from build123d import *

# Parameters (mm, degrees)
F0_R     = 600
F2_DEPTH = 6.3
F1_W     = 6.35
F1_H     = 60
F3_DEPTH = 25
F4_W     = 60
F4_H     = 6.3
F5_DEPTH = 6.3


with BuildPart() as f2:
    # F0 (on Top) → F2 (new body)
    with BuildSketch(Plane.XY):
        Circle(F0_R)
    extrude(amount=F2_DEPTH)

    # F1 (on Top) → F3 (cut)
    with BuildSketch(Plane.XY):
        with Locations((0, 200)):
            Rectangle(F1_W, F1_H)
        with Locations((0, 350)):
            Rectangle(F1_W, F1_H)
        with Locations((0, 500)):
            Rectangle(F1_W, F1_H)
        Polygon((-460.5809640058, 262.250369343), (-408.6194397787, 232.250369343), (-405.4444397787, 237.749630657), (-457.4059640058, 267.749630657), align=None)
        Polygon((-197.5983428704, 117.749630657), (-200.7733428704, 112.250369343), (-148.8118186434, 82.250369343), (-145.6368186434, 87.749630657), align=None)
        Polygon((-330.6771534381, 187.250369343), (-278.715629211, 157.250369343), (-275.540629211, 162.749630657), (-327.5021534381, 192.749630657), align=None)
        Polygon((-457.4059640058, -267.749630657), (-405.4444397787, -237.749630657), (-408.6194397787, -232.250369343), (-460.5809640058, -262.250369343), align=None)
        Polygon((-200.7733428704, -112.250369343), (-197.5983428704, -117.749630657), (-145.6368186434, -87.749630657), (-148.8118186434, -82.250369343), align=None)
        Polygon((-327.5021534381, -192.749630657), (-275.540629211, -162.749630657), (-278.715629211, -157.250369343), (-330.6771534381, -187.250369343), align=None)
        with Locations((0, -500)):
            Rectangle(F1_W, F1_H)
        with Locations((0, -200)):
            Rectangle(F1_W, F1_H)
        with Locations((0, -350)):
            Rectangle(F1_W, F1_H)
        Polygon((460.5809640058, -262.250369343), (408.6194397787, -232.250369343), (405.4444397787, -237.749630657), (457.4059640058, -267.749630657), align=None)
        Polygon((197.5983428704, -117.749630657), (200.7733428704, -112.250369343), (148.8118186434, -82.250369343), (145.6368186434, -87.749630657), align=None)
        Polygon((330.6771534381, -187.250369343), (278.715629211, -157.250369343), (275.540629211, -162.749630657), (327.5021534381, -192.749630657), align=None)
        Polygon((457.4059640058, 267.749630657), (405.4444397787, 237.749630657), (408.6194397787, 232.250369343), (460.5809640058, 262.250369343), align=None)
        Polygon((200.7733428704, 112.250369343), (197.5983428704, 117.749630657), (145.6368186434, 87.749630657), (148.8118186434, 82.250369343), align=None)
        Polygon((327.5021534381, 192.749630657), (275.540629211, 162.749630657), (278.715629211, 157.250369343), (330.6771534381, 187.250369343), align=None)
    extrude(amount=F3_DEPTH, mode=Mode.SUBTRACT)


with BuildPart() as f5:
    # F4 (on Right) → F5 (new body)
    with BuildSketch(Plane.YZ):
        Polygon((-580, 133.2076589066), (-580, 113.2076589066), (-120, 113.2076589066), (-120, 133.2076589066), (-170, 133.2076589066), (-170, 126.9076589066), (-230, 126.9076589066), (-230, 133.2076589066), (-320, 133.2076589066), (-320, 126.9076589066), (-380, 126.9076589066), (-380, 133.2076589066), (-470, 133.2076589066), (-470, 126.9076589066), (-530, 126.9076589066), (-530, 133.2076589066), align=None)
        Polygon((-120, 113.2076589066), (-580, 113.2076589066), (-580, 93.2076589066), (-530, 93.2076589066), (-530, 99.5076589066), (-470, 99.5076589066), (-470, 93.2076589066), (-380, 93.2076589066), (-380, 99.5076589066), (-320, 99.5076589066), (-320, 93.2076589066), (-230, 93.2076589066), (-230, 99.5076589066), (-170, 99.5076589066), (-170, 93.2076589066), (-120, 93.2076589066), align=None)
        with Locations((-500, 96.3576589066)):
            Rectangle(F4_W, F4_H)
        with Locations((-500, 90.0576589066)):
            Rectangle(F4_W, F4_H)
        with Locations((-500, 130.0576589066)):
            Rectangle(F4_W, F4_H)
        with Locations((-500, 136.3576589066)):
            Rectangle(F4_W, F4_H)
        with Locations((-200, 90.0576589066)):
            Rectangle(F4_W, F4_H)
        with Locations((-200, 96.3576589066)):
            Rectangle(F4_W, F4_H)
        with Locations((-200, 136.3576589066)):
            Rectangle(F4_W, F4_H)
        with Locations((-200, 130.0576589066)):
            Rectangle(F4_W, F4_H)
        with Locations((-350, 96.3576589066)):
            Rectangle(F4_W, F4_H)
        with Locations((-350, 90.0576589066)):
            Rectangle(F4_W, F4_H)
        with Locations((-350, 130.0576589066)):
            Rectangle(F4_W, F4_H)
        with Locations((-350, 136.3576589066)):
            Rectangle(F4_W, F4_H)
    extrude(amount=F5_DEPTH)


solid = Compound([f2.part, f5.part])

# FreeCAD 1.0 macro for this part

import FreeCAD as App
import Part
import Sketcher
Q = App.Units.Quantity

doc = App.newDocument("Part")
body = doc.addObject("PartDesign::Body", "Body")

# Sketch on XY plane
sketch1 = doc.addObject("Sketcher::SketchObject", "Sketch")
body.addObject(sketch1)
sketch1.AttachmentSupport = (doc.XY_Plane, [""])
sketch1.MapMode = "FlatFace"
sketch1.addGeometry(Part.Circle(App.Vector(0, 0, 0), App.Vector(0, 0, 1), 600), False)
sketch1.addConstraint([
    Sketcher.Constraint("Coincident", 0, 3, -1, 1),
    Sketcher.Constraint("Diameter", 0, 1200.0),
])
pad1 = doc.addObject("PartDesign::Pad", "Pad")
body.addObject(pad1)
pad1.Profile = sketch1
pad1.Length = 6.3

# Sketch on XY plane
sketch2 = doc.addObject("Sketcher::SketchObject", "Sketch001")
body.addObject(sketch2)
sketch2.AttachmentSupport = (doc.XY_Plane, [""])
sketch2.MapMode = "FlatFace"
sketch2.addGeometry([
    Part.LineSegment(App.Vector(-3, 230, 0), App.Vector(-3, 170, 0)),  # 0
    Part.LineSegment(App.Vector(-3, 170, 0), App.Vector(3, 170, 0)),  # 1
    Part.LineSegment(App.Vector(3, 170, 0), App.Vector(3, 230, 0)),  # 2
    Part.LineSegment(App.Vector(3, 230, 0), App.Vector(-3, 230, 0)),  # 3
    Part.LineSegment(App.Vector(-3, 380, 0), App.Vector(-3, 320, 0)),  # 4
    Part.LineSegment(App.Vector(-3, 320, 0), App.Vector(3, 320, 0)),  # 5
    Part.LineSegment(App.Vector(3, 320, 0), App.Vector(3, 380, 0)),  # 6
    Part.LineSegment(App.Vector(3, 380, 0), App.Vector(-3, 380, 0)),  # 7
    Part.LineSegment(App.Vector(-3, 530, 0), App.Vector(-3, 470, 0)),  # 8
    Part.LineSegment(App.Vector(-3, 470, 0), App.Vector(3, 470, 0)),  # 9
    Part.LineSegment(App.Vector(3, 470, 0), App.Vector(3, 530, 0)),  # 10
    Part.LineSegment(App.Vector(3, 530, 0), App.Vector(-3, 530, 0)),  # 11
    Part.LineSegment(App.Vector(-461, 262, 0), App.Vector(-409, 232, 0)),  # 12
    Part.LineSegment(App.Vector(-409, 232, 0), App.Vector(-405, 238, 0)),  # 13
    Part.LineSegment(App.Vector(-405, 238, 0), App.Vector(-457, 268, 0)),  # 14
    Part.LineSegment(App.Vector(-457, 268, 0), App.Vector(-461, 262, 0)),  # 15
    Part.LineSegment(App.Vector(-198, 118, 0), App.Vector(-201, 112, 0)),  # 16
    Part.LineSegment(App.Vector(-201, 112, 0), App.Vector(-149, 82, 0)),  # 17
    Part.LineSegment(App.Vector(-149, 82, 0), App.Vector(-146, 88, 0)),  # 18
    Part.LineSegment(App.Vector(-146, 88, 0), App.Vector(-198, 118, 0)),  # 19
    Part.LineSegment(App.Vector(-331, 187, 0), App.Vector(-279, 157, 0)),  # 20
    Part.LineSegment(App.Vector(-279, 157, 0), App.Vector(-276, 163, 0)),  # 21
    Part.LineSegment(App.Vector(-276, 163, 0), App.Vector(-328, 193, 0)),  # 22
    Part.LineSegment(App.Vector(-328, 193, 0), App.Vector(-331, 187, 0)),  # 23
    Part.LineSegment(App.Vector(-457, -268, 0), App.Vector(-405, -238, 0)),  # 24
    Part.LineSegment(App.Vector(-405, -238, 0), App.Vector(-409, -232, 0)),  # 25
    Part.LineSegment(App.Vector(-409, -232, 0), App.Vector(-461, -262, 0)),  # 26
    Part.LineSegment(App.Vector(-461, -262, 0), App.Vector(-457, -268, 0)),  # 27
    Part.LineSegment(App.Vector(-201, -112, 0), App.Vector(-198, -118, 0)),  # 28
    Part.LineSegment(App.Vector(-198, -118, 0), App.Vector(-146, -88, 0)),  # 29
    Part.LineSegment(App.Vector(-146, -88, 0), App.Vector(-149, -82, 0)),  # 30
    Part.LineSegment(App.Vector(-149, -82, 0), App.Vector(-201, -112, 0)),  # 31
    Part.LineSegment(App.Vector(-328, -193, 0), App.Vector(-276, -163, 0)),  # 32
    Part.LineSegment(App.Vector(-276, -163, 0), App.Vector(-279, -157, 0)),  # 33
    Part.LineSegment(App.Vector(-279, -157, 0), App.Vector(-331, -187, 0)),  # 34
    Part.LineSegment(App.Vector(-331, -187, 0), App.Vector(-328, -193, 0)),  # 35
    Part.LineSegment(App.Vector(-3, -470, 0), App.Vector(-3, -530, 0)),  # 36
    Part.LineSegment(App.Vector(-3, -530, 0), App.Vector(3, -530, 0)),  # 37
    Part.LineSegment(App.Vector(3, -530, 0), App.Vector(3, -470, 0)),  # 38
    Part.LineSegment(App.Vector(3, -470, 0), App.Vector(-3, -470, 0)),  # 39
    Part.LineSegment(App.Vector(-3, -170, 0), App.Vector(-3, -230, 0)),  # 40
    Part.LineSegment(App.Vector(-3, -230, 0), App.Vector(3, -230, 0)),  # 41
    Part.LineSegment(App.Vector(3, -230, 0), App.Vector(3, -170, 0)),  # 42
    Part.LineSegment(App.Vector(3, -170, 0), App.Vector(-3, -170, 0)),  # 43
    Part.LineSegment(App.Vector(-3, -320, 0), App.Vector(-3, -380, 0)),  # 44
    Part.LineSegment(App.Vector(-3, -380, 0), App.Vector(3, -380, 0)),  # 45
    Part.LineSegment(App.Vector(3, -380, 0), App.Vector(3, -320, 0)),  # 46
    Part.LineSegment(App.Vector(3, -320, 0), App.Vector(-3, -320, 0)),  # 47
    Part.LineSegment(App.Vector(461, -262, 0), App.Vector(409, -232, 0)),  # 48
    Part.LineSegment(App.Vector(409, -232, 0), App.Vector(405, -238, 0)),  # 49
    Part.LineSegment(App.Vector(405, -238, 0), App.Vector(457, -268, 0)),  # 50
    Part.LineSegment(App.Vector(457, -268, 0), App.Vector(461, -262, 0)),  # 51
    Part.LineSegment(App.Vector(198, -118, 0), App.Vector(201, -112, 0)),  # 52
    Part.LineSegment(App.Vector(201, -112, 0), App.Vector(149, -82, 0)),  # 53
    Part.LineSegment(App.Vector(149, -82, 0), App.Vector(146, -88, 0)),  # 54
    Part.LineSegment(App.Vector(146, -88, 0), App.Vector(198, -118, 0)),  # 55
    Part.LineSegment(App.Vector(331, -187, 0), App.Vector(279, -157, 0)),  # 56
    Part.LineSegment(App.Vector(279, -157, 0), App.Vector(276, -163, 0)),  # 57
    Part.LineSegment(App.Vector(276, -163, 0), App.Vector(328, -193, 0)),  # 58
    Part.LineSegment(App.Vector(328, -193, 0), App.Vector(331, -187, 0)),  # 59
    Part.LineSegment(App.Vector(457, 268, 0), App.Vector(405, 238, 0)),  # 60
    Part.LineSegment(App.Vector(405, 238, 0), App.Vector(409, 232, 0)),  # 61
    Part.LineSegment(App.Vector(409, 232, 0), App.Vector(461, 262, 0)),  # 62
    Part.LineSegment(App.Vector(461, 262, 0), App.Vector(457, 268, 0)),  # 63
    Part.LineSegment(App.Vector(201, 112, 0), App.Vector(198, 118, 0)),  # 64
    Part.LineSegment(App.Vector(198, 118, 0), App.Vector(146, 88, 0)),  # 65
    Part.LineSegment(App.Vector(146, 88, 0), App.Vector(149, 82, 0)),  # 66
    Part.LineSegment(App.Vector(149, 82, 0), App.Vector(201, 112, 0)),  # 67
    Part.LineSegment(App.Vector(328, 193, 0), App.Vector(276, 163, 0)),  # 68
    Part.LineSegment(App.Vector(276, 163, 0), App.Vector(279, 157, 0)),  # 69
    Part.LineSegment(App.Vector(279, 157, 0), App.Vector(331, 187, 0)),  # 70
    Part.LineSegment(App.Vector(331, 187, 0), App.Vector(328, 193, 0)),  # 71
], False)
sketch2.addConstraint([
    Sketcher.Constraint("Coincident", 0, 2, 1, 1),
    Sketcher.Constraint("Coincident", 1, 2, 2, 1),
    Sketcher.Constraint("Coincident", 2, 2, 3, 1),
    Sketcher.Constraint("Coincident", 3, 2, 0, 1),
    Sketcher.Constraint("Coincident", 4, 2, 5, 1),
    Sketcher.Constraint("Coincident", 5, 2, 6, 1),
    Sketcher.Constraint("Coincident", 6, 2, 7, 1),
    Sketcher.Constraint("Coincident", 7, 2, 4, 1),
    Sketcher.Constraint("Coincident", 8, 2, 9, 1),
    Sketcher.Constraint("Coincident", 9, 2, 10, 1),
    Sketcher.Constraint("Coincident", 10, 2, 11, 1),
    Sketcher.Constraint("Coincident", 11, 2, 8, 1),
    Sketcher.Constraint("Coincident", 12, 2, 13, 1),
    Sketcher.Constraint("Coincident", 13, 2, 14, 1),
    Sketcher.Constraint("Coincident", 14, 2, 15, 1),
    Sketcher.Constraint("Coincident", 15, 2, 12, 1),
    Sketcher.Constraint("Coincident", 16, 2, 17, 1),
    Sketcher.Constraint("Coincident", 17, 2, 18, 1),
    Sketcher.Constraint("Coincident", 18, 2, 19, 1),
    Sketcher.Constraint("Coincident", 19, 2, 16, 1),
    Sketcher.Constraint("Coincident", 20, 2, 21, 1),
    Sketcher.Constraint("Coincident", 21, 2, 22, 1),
    Sketcher.Constraint("Coincident", 22, 2, 23, 1),
    Sketcher.Constraint("Coincident", 23, 2, 20, 1),
    Sketcher.Constraint("Coincident", 24, 2, 25, 1),
    Sketcher.Constraint("Coincident", 25, 2, 26, 1),
    Sketcher.Constraint("Coincident", 26, 2, 27, 1),
    Sketcher.Constraint("Coincident", 27, 2, 24, 1),
    Sketcher.Constraint("Coincident", 28, 2, 29, 1),
    Sketcher.Constraint("Coincident", 29, 2, 30, 1),
    Sketcher.Constraint("Coincident", 30, 2, 31, 1),
    Sketcher.Constraint("Coincident", 31, 2, 28, 1),
    Sketcher.Constraint("Coincident", 32, 2, 33, 1),
    Sketcher.Constraint("Coincident", 33, 2, 34, 1),
    Sketcher.Constraint("Coincident", 34, 2, 35, 1),
    Sketcher.Constraint("Coincident", 35, 2, 32, 1),
    Sketcher.Constraint("Coincident", 36, 2, 37, 1),
    Sketcher.Constraint("Coincident", 37, 2, 38, 1),
    Sketcher.Constraint("Coincident", 38, 2, 39, 1),
    Sketcher.Constraint("Coincident", 39, 2, 36, 1),
    Sketcher.Constraint("Coincident", 40, 2, 41, 1),
    Sketcher.Constraint("Coincident", 41, 2, 42, 1),
    Sketcher.Constraint("Coincident", 42, 2, 43, 1),
    Sketcher.Constraint("Coincident", 43, 2, 40, 1),
    Sketcher.Constraint("Coincident", 44, 2, 45, 1),
    Sketcher.Constraint("Coincident", 45, 2, 46, 1),
    Sketcher.Constraint("Coincident", 46, 2, 47, 1),
    Sketcher.Constraint("Coincident", 47, 2, 44, 1),
    Sketcher.Constraint("Coincident", 48, 2, 49, 1),
    Sketcher.Constraint("Coincident", 49, 2, 50, 1),
    Sketcher.Constraint("Coincident", 50, 2, 51, 1),
    Sketcher.Constraint("Coincident", 51, 2, 48, 1),
    Sketcher.Constraint("Coincident", 52, 2, 53, 1),
    Sketcher.Constraint("Coincident", 53, 2, 54, 1),
    Sketcher.Constraint("Coincident", 54, 2, 55, 1),
    Sketcher.Constraint("Coincident", 55, 2, 52, 1),
    Sketcher.Constraint("Coincident", 56, 2, 57, 1),
    Sketcher.Constraint("Coincident", 57, 2, 58, 1),
    Sketcher.Constraint("Coincident", 58, 2, 59, 1),
    Sketcher.Constraint("Coincident", 59, 2, 56, 1),
    Sketcher.Constraint("Coincident", 60, 2, 61, 1),
    Sketcher.Constraint("Coincident", 61, 2, 62, 1),
    Sketcher.Constraint("Coincident", 62, 2, 63, 1),
    Sketcher.Constraint("Coincident", 63, 2, 60, 1),
    Sketcher.Constraint("Coincident", 64, 2, 65, 1),
    Sketcher.Constraint("Coincident", 65, 2, 66, 1),
    Sketcher.Constraint("Coincident", 66, 2, 67, 1),
    Sketcher.Constraint("Coincident", 67, 2, 64, 1),
    Sketcher.Constraint("Coincident", 68, 2, 69, 1),
    Sketcher.Constraint("Coincident", 69, 2, 70, 1),
    Sketcher.Constraint("Coincident", 70, 2, 71, 1),
    Sketcher.Constraint("Coincident", 71, 2, 68, 1),
    Sketcher.Constraint("Vertical", 0),
    Sketcher.Constraint("Horizontal", 1),
    Sketcher.Constraint("Vertical", 2),
    Sketcher.Constraint("Horizontal", 3),
    Sketcher.Constraint("Vertical", 4),
    Sketcher.Constraint("Horizontal", 5),
    Sketcher.Constraint("Vertical", 6),
    Sketcher.Constraint("Horizontal", 7),
    Sketcher.Constraint("Vertical", 8),
    Sketcher.Constraint("Horizontal", 9),
    Sketcher.Constraint("Vertical", 10),
    Sketcher.Constraint("Horizontal", 11),
    Sketcher.Constraint("Vertical", 36),
    Sketcher.Constraint("Horizontal", 37),
    Sketcher.Constraint("Vertical", 38),
    Sketcher.Constraint("Horizontal", 39),
    Sketcher.Constraint("Vertical", 40),
    Sketcher.Constraint("Horizontal", 41),
    Sketcher.Constraint("Vertical", 42),
    Sketcher.Constraint("Horizontal", 43),
    Sketcher.Constraint("Vertical", 44),
    Sketcher.Constraint("Horizontal", 45),
    Sketcher.Constraint("Vertical", 46),
    Sketcher.Constraint("Horizontal", 47),
    Sketcher.Constraint("Symmetric", 10, 2, 36, 2, -1, 1),
    Sketcher.Constraint("Symmetric", 8, 2, 38, 2, -1, 1),
    Sketcher.Constraint("Symmetric", 2, 2, 40, 2, -1, 1),
    Sketcher.Constraint("Symmetric", 0, 2, 42, 2, -1, 1),
    Sketcher.Constraint("Symmetric", 6, 2, 44, 2, -1, 1),
    Sketcher.Constraint("Symmetric", 4, 2, 46, 2, -1, 1),
    Sketcher.Constraint("Symmetric", 12, 2, 48, 2, -1, 1),
    Sketcher.Constraint("Symmetric", 13, 2, 49, 2, -1, 1),
    Sketcher.Constraint("Symmetric", 14, 2, 50, 2, -1, 1),
    Sketcher.Constraint("Symmetric", 15, 2, 51, 2, -1, 1),
    Sketcher.Constraint("Symmetric", 16, 2, 52, 2, -1, 1),
    Sketcher.Constraint("Symmetric", 17, 2, 53, 2, -1, 1),
    Sketcher.Constraint("Symmetric", 18, 2, 54, 2, -1, 1),
    Sketcher.Constraint("Symmetric", 19, 2, 55, 2, -1, 1),
    Sketcher.Constraint("Symmetric", 20, 2, 56, 2, -1, 1),
    Sketcher.Constraint("Symmetric", 21, 2, 57, 2, -1, 1),
    Sketcher.Constraint("Symmetric", 22, 2, 58, 2, -1, 1),
    Sketcher.Constraint("Symmetric", 23, 2, 59, 2, -1, 1),
    Sketcher.Constraint("Symmetric", 24, 2, 60, 2, -1, 1),
    Sketcher.Constraint("Symmetric", 25, 2, 61, 2, -1, 1),
    Sketcher.Constraint("Symmetric", 26, 2, 62, 2, -1, 1),
    Sketcher.Constraint("Symmetric", 27, 2, 63, 2, -1, 1),
    Sketcher.Constraint("Symmetric", 28, 2, 64, 2, -1, 1),
    Sketcher.Constraint("Symmetric", 29, 2, 65, 2, -1, 1),
    Sketcher.Constraint("Symmetric", 30, 2, 66, 2, -1, 1),
    Sketcher.Constraint("Symmetric", 31, 2, 67, 2, -1, 1),
    Sketcher.Constraint("Symmetric", 32, 2, 68, 2, -1, 1),
    Sketcher.Constraint("Symmetric", 33, 2, 69, 2, -1, 1),
    Sketcher.Constraint("Symmetric", 34, 2, 70, 2, -1, 1),
    Sketcher.Constraint("Symmetric", 35, 2, 71, 2, -1, 1),
    Sketcher.Constraint("Symmetric", 25, 2, 48, 2, -2),
    Sketcher.Constraint("Symmetric", 24, 2, 49, 2, -2),
    Sketcher.Constraint("Symmetric", 27, 2, 50, 2, -2),
    Sketcher.Constraint("Symmetric", 26, 2, 51, 2, -2),
    Sketcher.Constraint("Symmetric", 31, 2, 52, 2, -2),
    Sketcher.Constraint("Symmetric", 30, 2, 53, 2, -2),
    Sketcher.Constraint("Symmetric", 29, 2, 54, 2, -2),
    Sketcher.Constraint("Symmetric", 28, 2, 55, 2, -2),
    Sketcher.Constraint("Symmetric", 33, 2, 56, 2, -2),
    Sketcher.Constraint("Symmetric", 32, 2, 57, 2, -2),
    Sketcher.Constraint("Symmetric", 35, 2, 58, 2, -2),
    Sketcher.Constraint("Symmetric", 34, 2, 59, 2, -2),
    Sketcher.Constraint("Perpendicular", 12, 13),
    Sketcher.Constraint("Perpendicular", 13, 14),
    Sketcher.Constraint("Perpendicular", 14, 15),
    Sketcher.Constraint("Parallel", 15, 16),
    Sketcher.Constraint("Perpendicular", 16, 17),
    Sketcher.Constraint("Perpendicular", 17, 18),
    Sketcher.Constraint("Perpendicular", 18, 19),
    Sketcher.Constraint("Parallel", 19, 20),
    Sketcher.Constraint("Perpendicular", 20, 21),
    Sketcher.Constraint("Perpendicular", 21, 22),
    Sketcher.Constraint("Perpendicular", 22, 23),
    Sketcher.Constraint("Vertical", 3, 2, 4, 2),
    Sketcher.Constraint("Vertical", 2, 2, 5, 2),
    Sketcher.Constraint("Vertical", 7, 2, 8, 2),
    Sketcher.Constraint("Vertical", 6, 2, 9, 2),
    Sketcher.Constraint("Vertical", 11, 2, 36, 2),
    Sketcher.Constraint("Equal", 2, 4),
    Sketcher.Constraint("Equal", 6, 8),
    Sketcher.Constraint("Equal", 15, 16),
    Sketcher.Constraint("Equal", 14, 17),
    Sketcher.Constraint("Equal", 19, 20),
    Sketcher.Constraint("Equal", 18, 21),
    Sketcher.Constraint("DistanceY", 0, 2, 0, 1, 60.0),
    Sketcher.Constraint("Angle", 12, Q("-30 deg")),
    Sketcher.Constraint("Distance", 12, 60.0),
    Sketcher.Constraint("DistanceY", -1, 1, 0, 2, 170.0),
    Sketcher.Constraint("DistanceY", -1, 1, 4, 2, 320.0),
    Sketcher.Constraint("DistanceY", -1, 1, 8, 2, 470.0),
    Sketcher.Constraint("DistanceX", 1, 1, 1, 2, 6.35),
    Sketcher.Constraint("Distance", 13, 6.35),
    Sketcher.Constraint("DistanceX", 12, 2, -1, 1, 408.61944),
    Sketcher.Constraint("DistanceY", -1, 1, 12, 2, 232.250369),
    Sketcher.Constraint("DistanceY", -1, 1, 16, 2, 112.250369),
    Sketcher.Constraint("DistanceX", 17, 2, -1, 1, 148.811819),
    Sketcher.Constraint("DistanceX", 20, 2, -1, 1, 278.715629),
    Sketcher.Constraint("DistanceY", -1, 1, 20, 2, 157.250369),
])
pocket1 = doc.addObject("PartDesign::Pocket", "Pocket")
body.addObject(pocket1)
pocket1.Profile = sketch2
pocket1.Length = 25
pocket1.Reversed = True
body2 = doc.addObject("PartDesign::Body", "Body001")

# Sketch on YZ plane
sketch3 = doc.addObject("Sketcher::SketchObject", "Sketch002")
body2.addObject(sketch3)
sketch3.AttachmentSupport = (doc.getObject("YZ_Plane001"), [""])
sketch3.MapMode = "FlatFace"
sketch3.addGeometry([
    Part.LineSegment(App.Vector(-580, 133, 0), App.Vector(-580, 93, 0)),  # 0
    Part.LineSegment(App.Vector(-580, 93, 0), App.Vector(-530, 93, 0)),  # 1
    Part.LineSegment(App.Vector(-530, 93, 0), App.Vector(-530, 87, 0)),  # 2
    Part.LineSegment(App.Vector(-530, 87, 0), App.Vector(-470, 87, 0)),  # 3
    Part.LineSegment(App.Vector(-470, 87, 0), App.Vector(-470, 93, 0)),  # 4
    Part.LineSegment(App.Vector(-470, 93, 0), App.Vector(-380, 93, 0)),  # 5
    Part.LineSegment(App.Vector(-380, 93, 0), App.Vector(-380, 87, 0)),  # 6
    Part.LineSegment(App.Vector(-380, 87, 0), App.Vector(-320, 87, 0)),  # 7
    Part.LineSegment(App.Vector(-320, 87, 0), App.Vector(-320, 93, 0)),  # 8
    Part.LineSegment(App.Vector(-320, 93, 0), App.Vector(-230, 93, 0)),  # 9
    Part.LineSegment(App.Vector(-230, 93, 0), App.Vector(-230, 87, 0)),  # 10
    Part.LineSegment(App.Vector(-230, 87, 0), App.Vector(-170, 87, 0)),  # 11
    Part.LineSegment(App.Vector(-170, 87, 0), App.Vector(-170, 93, 0)),  # 12
    Part.LineSegment(App.Vector(-170, 93, 0), App.Vector(-120, 93, 0)),  # 13
    Part.LineSegment(App.Vector(-120, 93, 0), App.Vector(-120, 133, 0)),  # 14
    Part.LineSegment(App.Vector(-120, 133, 0), App.Vector(-170, 133, 0)),  # 15
    Part.LineSegment(App.Vector(-170, 133, 0), App.Vector(-170, 140, 0)),  # 16
    Part.LineSegment(App.Vector(-170, 140, 0), App.Vector(-230, 140, 0)),  # 17
    Part.LineSegment(App.Vector(-230, 140, 0), App.Vector(-230, 133, 0)),  # 18
    Part.LineSegment(App.Vector(-230, 133, 0), App.Vector(-320, 133, 0)),  # 19
    Part.LineSegment(App.Vector(-320, 133, 0), App.Vector(-320, 140, 0)),  # 20
    Part.LineSegment(App.Vector(-320, 140, 0), App.Vector(-380, 140, 0)),  # 21
    Part.LineSegment(App.Vector(-380, 140, 0), App.Vector(-380, 133, 0)),  # 22
    Part.LineSegment(App.Vector(-380, 133, 0), App.Vector(-470, 133, 0)),  # 23
    Part.LineSegment(App.Vector(-470, 133, 0), App.Vector(-470, 140, 0)),  # 24
    Part.LineSegment(App.Vector(-470, 140, 0), App.Vector(-530, 140, 0)),  # 25
    Part.LineSegment(App.Vector(-530, 140, 0), App.Vector(-530, 133, 0)),  # 26
    Part.LineSegment(App.Vector(-530, 133, 0), App.Vector(-580, 133, 0)),  # 27
], False)
sketch3.addConstraint([
    Sketcher.Constraint("Coincident", 0, 2, 1, 1),
    Sketcher.Constraint("Coincident", 1, 2, 2, 1),
    Sketcher.Constraint("Coincident", 2, 2, 3, 1),
    Sketcher.Constraint("Coincident", 3, 2, 4, 1),
    Sketcher.Constraint("Coincident", 4, 2, 5, 1),
    Sketcher.Constraint("Coincident", 5, 2, 6, 1),
    Sketcher.Constraint("Coincident", 6, 2, 7, 1),
    Sketcher.Constraint("Coincident", 7, 2, 8, 1),
    Sketcher.Constraint("Coincident", 8, 2, 9, 1),
    Sketcher.Constraint("Coincident", 9, 2, 10, 1),
    Sketcher.Constraint("Coincident", 10, 2, 11, 1),
    Sketcher.Constraint("Coincident", 11, 2, 12, 1),
    Sketcher.Constraint("Coincident", 12, 2, 13, 1),
    Sketcher.Constraint("Coincident", 13, 2, 14, 1),
    Sketcher.Constraint("Coincident", 14, 2, 15, 1),
    Sketcher.Constraint("Coincident", 15, 2, 16, 1),
    Sketcher.Constraint("Coincident", 16, 2, 17, 1),
    Sketcher.Constraint("Coincident", 17, 2, 18, 1),
    Sketcher.Constraint("Coincident", 18, 2, 19, 1),
    Sketcher.Constraint("Coincident", 19, 2, 20, 1),
    Sketcher.Constraint("Coincident", 20, 2, 21, 1),
    Sketcher.Constraint("Coincident", 21, 2, 22, 1),
    Sketcher.Constraint("Coincident", 22, 2, 23, 1),
    Sketcher.Constraint("Coincident", 23, 2, 24, 1),
    Sketcher.Constraint("Coincident", 24, 2, 25, 1),
    Sketcher.Constraint("Coincident", 25, 2, 26, 1),
    Sketcher.Constraint("Coincident", 26, 2, 27, 1),
    Sketcher.Constraint("Coincident", 27, 2, 0, 1),
    Sketcher.Constraint("Vertical", 0),
    Sketcher.Constraint("Horizontal", 1),
    Sketcher.Constraint("Vertical", 2),
    Sketcher.Constraint("Horizontal", 3),
    Sketcher.Constraint("Vertical", 4),
    Sketcher.Constraint("Horizontal", 5),
    Sketcher.Constraint("Vertical", 6),
    Sketcher.Constraint("Horizontal", 7),
    Sketcher.Constraint("Vertical", 8),
    Sketcher.Constraint("Horizontal", 9),
    Sketcher.Constraint("Vertical", 10),
    Sketcher.Constraint("Horizontal", 11),
    Sketcher.Constraint("Vertical", 12),
    Sketcher.Constraint("Horizontal", 13),
    Sketcher.Constraint("Vertical", 14),
    Sketcher.Constraint("Horizontal", 15),
    Sketcher.Constraint("Vertical", 16),
    Sketcher.Constraint("Horizontal", 17),
    Sketcher.Constraint("Vertical", 18),
    Sketcher.Constraint("Horizontal", 19),
    Sketcher.Constraint("Vertical", 20),
    Sketcher.Constraint("Horizontal", 21),
    Sketcher.Constraint("Vertical", 22),
    Sketcher.Constraint("Horizontal", 23),
    Sketcher.Constraint("Vertical", 24),
    Sketcher.Constraint("Horizontal", 25),
    Sketcher.Constraint("Vertical", 26),
    Sketcher.Constraint("Horizontal", 27),
    Sketcher.Constraint("Horizontal", 1, 2, 4, 2),
    Sketcher.Constraint("Horizontal", 3, 2, 6, 2),
    Sketcher.Constraint("Horizontal", 5, 2, 8, 2),
    Sketcher.Constraint("Horizontal", 7, 2, 10, 2),
    Sketcher.Constraint("Horizontal", 9, 2, 12, 2),
    Sketcher.Constraint("Horizontal", 15, 2, 18, 2),
    Sketcher.Constraint("Horizontal", 17, 2, 20, 2),
    Sketcher.Constraint("Horizontal", 19, 2, 22, 2),
    Sketcher.Constraint("Horizontal", 21, 2, 24, 2),
    Sketcher.Constraint("Horizontal", 23, 2, 26, 2),
    Sketcher.Constraint("Vertical", 12, 2, 15, 2),
    Sketcher.Constraint("Vertical", 10, 2, 17, 2),
    Sketcher.Constraint("Vertical", 8, 2, 19, 2),
    Sketcher.Constraint("Vertical", 6, 2, 21, 2),
    Sketcher.Constraint("Vertical", 4, 2, 23, 2),
    Sketcher.Constraint("Vertical", 2, 2, 25, 2),
    Sketcher.Constraint("Equal", 3, 7),
    Sketcher.Constraint("Equal", 5, 9),
    Sketcher.Constraint("Equal", 7, 11),
    Sketcher.Constraint("Equal", 1, 13),
    Sketcher.Constraint("Equal", 12, 16),
    Sketcher.Constraint("DistanceX", 1, 1, 1, 2, 50.0),
    Sketcher.Constraint("DistanceX", 3, 1, 3, 2, 60.0),
    Sketcher.Constraint("DistanceX", 5, 1, 5, 2, 90.0),
    Sketcher.Constraint("DistanceY", 0, 2, 0, 1, 40.0),
    Sketcher.Constraint("DistanceY", 2, 2, 2, 1, 6.3),
    Sketcher.Constraint("DistanceX", 0, 2, -1, 1, 580.0),
    Sketcher.Constraint("DistanceY", -1, 1, 0, 2, 93.207659),
])
pad2 = doc.addObject("PartDesign::Pad", "Pad001")
body2.addObject(pad2)
pad2.Profile = sketch3
pad2.Length = 6.3

doc.recompute()
